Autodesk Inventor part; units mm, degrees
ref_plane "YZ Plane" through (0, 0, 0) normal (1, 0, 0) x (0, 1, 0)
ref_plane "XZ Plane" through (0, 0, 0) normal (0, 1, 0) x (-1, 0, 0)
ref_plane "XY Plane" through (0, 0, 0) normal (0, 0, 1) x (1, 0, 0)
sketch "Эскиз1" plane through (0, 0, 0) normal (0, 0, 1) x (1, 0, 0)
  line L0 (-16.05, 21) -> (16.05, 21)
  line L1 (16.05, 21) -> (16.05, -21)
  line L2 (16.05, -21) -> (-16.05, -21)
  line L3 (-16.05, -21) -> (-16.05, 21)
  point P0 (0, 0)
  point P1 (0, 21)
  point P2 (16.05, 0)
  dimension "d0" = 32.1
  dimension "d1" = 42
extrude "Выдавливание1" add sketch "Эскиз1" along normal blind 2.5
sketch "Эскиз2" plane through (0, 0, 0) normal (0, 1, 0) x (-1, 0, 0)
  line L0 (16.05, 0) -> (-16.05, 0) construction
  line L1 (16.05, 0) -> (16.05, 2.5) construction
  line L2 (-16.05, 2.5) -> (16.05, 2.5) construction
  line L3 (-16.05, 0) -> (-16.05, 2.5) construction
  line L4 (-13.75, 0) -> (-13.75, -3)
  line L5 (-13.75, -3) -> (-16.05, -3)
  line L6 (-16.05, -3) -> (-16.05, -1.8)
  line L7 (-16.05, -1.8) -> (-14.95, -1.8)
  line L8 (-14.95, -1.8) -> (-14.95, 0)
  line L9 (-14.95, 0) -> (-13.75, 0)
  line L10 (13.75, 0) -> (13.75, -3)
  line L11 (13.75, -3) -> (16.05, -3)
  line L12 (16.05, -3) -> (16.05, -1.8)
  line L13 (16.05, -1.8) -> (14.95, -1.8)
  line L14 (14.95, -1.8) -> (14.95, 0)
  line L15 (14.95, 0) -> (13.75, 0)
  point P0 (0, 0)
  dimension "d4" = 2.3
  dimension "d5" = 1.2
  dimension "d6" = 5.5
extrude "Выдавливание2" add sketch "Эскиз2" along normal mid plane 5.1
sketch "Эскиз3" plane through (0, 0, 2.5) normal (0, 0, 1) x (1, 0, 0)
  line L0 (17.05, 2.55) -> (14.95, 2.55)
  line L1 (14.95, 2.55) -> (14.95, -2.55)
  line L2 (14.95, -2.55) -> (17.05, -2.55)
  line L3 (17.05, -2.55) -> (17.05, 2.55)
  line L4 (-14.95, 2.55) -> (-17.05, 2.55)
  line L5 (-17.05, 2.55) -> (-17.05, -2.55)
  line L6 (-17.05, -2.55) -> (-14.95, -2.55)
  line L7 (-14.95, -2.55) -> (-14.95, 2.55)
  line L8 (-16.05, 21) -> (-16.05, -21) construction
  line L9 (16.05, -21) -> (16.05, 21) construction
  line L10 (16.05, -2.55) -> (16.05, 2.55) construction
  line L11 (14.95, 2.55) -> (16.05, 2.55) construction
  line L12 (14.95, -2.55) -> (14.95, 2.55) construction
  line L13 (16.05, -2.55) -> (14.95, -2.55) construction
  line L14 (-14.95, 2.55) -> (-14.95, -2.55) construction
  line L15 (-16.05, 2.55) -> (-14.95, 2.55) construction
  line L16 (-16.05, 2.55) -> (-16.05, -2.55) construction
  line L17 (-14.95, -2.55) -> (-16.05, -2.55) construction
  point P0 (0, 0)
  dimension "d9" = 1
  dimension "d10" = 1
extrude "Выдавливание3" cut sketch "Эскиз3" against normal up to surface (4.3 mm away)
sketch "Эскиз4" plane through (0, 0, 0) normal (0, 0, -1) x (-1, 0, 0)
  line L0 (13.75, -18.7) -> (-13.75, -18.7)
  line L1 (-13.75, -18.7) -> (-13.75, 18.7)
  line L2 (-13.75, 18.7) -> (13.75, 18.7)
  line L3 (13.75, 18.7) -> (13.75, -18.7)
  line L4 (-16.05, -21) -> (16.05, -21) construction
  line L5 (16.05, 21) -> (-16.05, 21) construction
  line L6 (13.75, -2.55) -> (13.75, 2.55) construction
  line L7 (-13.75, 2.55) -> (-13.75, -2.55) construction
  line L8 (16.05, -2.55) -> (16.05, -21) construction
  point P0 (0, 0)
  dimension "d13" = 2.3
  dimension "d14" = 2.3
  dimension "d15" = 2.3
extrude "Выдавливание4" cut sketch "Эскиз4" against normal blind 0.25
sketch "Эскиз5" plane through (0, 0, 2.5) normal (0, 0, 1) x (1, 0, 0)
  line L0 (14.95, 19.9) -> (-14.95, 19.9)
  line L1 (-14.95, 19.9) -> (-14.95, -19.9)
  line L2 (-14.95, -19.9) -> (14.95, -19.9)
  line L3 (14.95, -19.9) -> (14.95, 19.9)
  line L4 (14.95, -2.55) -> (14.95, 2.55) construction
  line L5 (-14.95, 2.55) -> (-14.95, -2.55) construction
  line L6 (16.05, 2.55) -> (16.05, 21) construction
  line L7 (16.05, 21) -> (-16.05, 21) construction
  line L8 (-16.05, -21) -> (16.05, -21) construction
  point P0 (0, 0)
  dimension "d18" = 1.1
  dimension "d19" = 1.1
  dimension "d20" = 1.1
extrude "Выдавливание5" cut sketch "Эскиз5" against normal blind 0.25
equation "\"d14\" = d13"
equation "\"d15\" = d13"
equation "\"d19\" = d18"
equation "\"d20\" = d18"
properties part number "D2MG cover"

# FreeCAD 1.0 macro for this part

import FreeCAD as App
import Part
import Sketcher
from FreeCAD import Vector
Q = App.Units.Quantity

doc = App.newDocument("Part")
params = doc.addObject("Spreadsheet::Sheet", "Params")
for row, (alias, value) in enumerate([
    ("sketch1_height", "42 mm"),
    ("sketch1_width", "32.1 mm"),
    ("pad1_length", "2.5 mm"),
    ("sketch2_width", "1.2 mm"),
    ("sketch2_width2", "2.3 mm"),
    ("sketch2_height", "3 mm"),
    ("pad2_length", "5.1 mm"),
    ("sketch3_width", "2.1 mm"),
    ("sketch3_height", "5.1 mm"),
    ("pocket1_length", "4.3 mm"),
    ("sketch4_width", "27.5 mm"),
    ("sketch4_height", "37.4 mm"),
    ("pocket2_length", "0.25 mm"),
    ("sketch5_width", "29.9 mm"),
    ("sketch5_height", "39.8 mm"),
    ("pocket3_length", "0.25 mm"),
], start=1):
    params.set(f"A{row}", alias)
    params.set(f"B{row}", "=" + value)
    params.setAlias(f"B{row}", alias)

body = doc.addObject("PartDesign::Body", "Body")

# Sketch on XY plane
sketch1 = doc.addObject("Sketcher::SketchObject", "Sketch")
body.addObject(sketch1)
sketch1.AttachmentSupport = (doc.XY_Plane, [""])
sketch1.MapMode = "FlatFace"
sketch1.addGeometry(Part.LineSegment(Vector(16, 21, 0), Vector(-16, 21, 0)), False)
sketch1.addGeometry(Part.LineSegment(Vector(-16, 21, 0), Vector(-16, -21, 0)), False)
sketch1.addGeometry(Part.LineSegment(Vector(-16, -21, 0), Vector(16, -21, 0)), False)
sketch1.addGeometry(Part.LineSegment(Vector(16, -21, 0), Vector(16, 21, 0)), False)
sketch1.addConstraint(Sketcher.Constraint("Coincident", 0, 2, 1, 1))
sketch1.addConstraint(Sketcher.Constraint("Coincident", 1, 2, 2, 1))
sketch1.addConstraint(Sketcher.Constraint("Coincident", 2, 2, 3, 1))
sketch1.addConstraint(Sketcher.Constraint("Coincident", 3, 2, 0, 1))
sketch1.addConstraint(Sketcher.Constraint("Horizontal", 0))
sketch1.addConstraint(Sketcher.Constraint("Vertical", 1))
sketch1.addConstraint(Sketcher.Constraint("Horizontal", 2))
sketch1.addConstraint(Sketcher.Constraint("Vertical", 3))
sketch1.addConstraint(Sketcher.Constraint("Symmetric", 0, 2, 2, 2, -1, 1))
sketch1.addConstraint(Sketcher.Constraint("DistanceY", 1, 2, 1, 1, Q("42 mm")))
sketch1.addConstraint(Sketcher.Constraint("DistanceX", 0, 2, 0, 1, Q("32.1 mm")))
sketch1.setExpression("Constraints[9]", "Params.sketch1_height")
sketch1.setExpression("Constraints[10]", "Params.sketch1_width")
pad1 = doc.addObject("PartDesign::Pad", "Pad")
body.addObject(pad1)
pad1.Profile = sketch1
pad1.setExpression("Length", "Params.pad1_length")

# Sketch on XZ plane
sketch2 = doc.addObject("Sketcher::SketchObject", "Sketch001")
body.addObject(sketch2)
sketch2.AttachmentSupport = (doc.XZ_Plane, [""])
sketch2.MapMode = "FlatFace"
sketch2.addGeometry(Part.LineSegment(Vector(13.8, -3, 0), Vector(13.8, 0, 0)), False)
sketch2.addGeometry(Part.LineSegment(Vector(13.8, 0, 0), Vector(14.9, 0, 0)), False)
sketch2.addGeometry(Part.LineSegment(Vector(14.9, 0, 0), Vector(14.9, -1.8, 0)), False)
sketch2.addGeometry(Part.LineSegment(Vector(14.9, -1.8, 0), Vector(16.1, -1.8, 0)), False)
sketch2.addGeometry(Part.LineSegment(Vector(16.1, -1.8, 0), Vector(16.1, -3, 0)), False)
sketch2.addGeometry(Part.LineSegment(Vector(16.1, -3, 0), Vector(13.8, -3, 0)), False)
sketch2.addGeometry(Part.LineSegment(Vector(-14.9, 0, 0), Vector(-13.8, 0, 0)), False)
sketch2.addGeometry(Part.LineSegment(Vector(-13.8, 0, 0), Vector(-13.8, -3, 0)), False)
sketch2.addGeometry(Part.LineSegment(Vector(-13.8, -3, 0), Vector(-16.1, -3, 0)), False)
sketch2.addGeometry(Part.LineSegment(Vector(-16.1, -3, 0), Vector(-16.1, -1.8, 0)), False)
sketch2.addGeometry(Part.LineSegment(Vector(-16.1, -1.8, 0), Vector(-14.9, -1.8, 0)), False)
sketch2.addGeometry(Part.LineSegment(Vector(-14.9, -1.8, 0), Vector(-14.9, 0, 0)), False)
sketch2.addConstraint(Sketcher.Constraint("Coincident", 0, 2, 1, 1))
sketch2.addConstraint(Sketcher.Constraint("Coincident", 1, 2, 2, 1))
sketch2.addConstraint(Sketcher.Constraint("Coincident", 2, 2, 3, 1))
sketch2.addConstraint(Sketcher.Constraint("Coincident", 3, 2, 4, 1))
sketch2.addConstraint(Sketcher.Constraint("Coincident", 4, 2, 5, 1))
sketch2.addConstraint(Sketcher.Constraint("Coincident", 5, 2, 0, 1))
sketch2.addConstraint(Sketcher.Constraint("Coincident", 6, 2, 7, 1))
sketch2.addConstraint(Sketcher.Constraint("Coincident", 7, 2, 8, 1))
sketch2.addConstraint(Sketcher.Constraint("Coincident", 8, 2, 9, 1))
sketch2.addConstraint(Sketcher.Constraint("Coincident", 9, 2, 10, 1))
sketch2.addConstraint(Sketcher.Constraint("Coincident", 10, 2, 11, 1))
sketch2.addConstraint(Sketcher.Constraint("Coincident", 11, 2, 6, 1))
sketch2.addConstraint(Sketcher.Constraint("Vertical", 0))
sketch2.addConstraint(Sketcher.Constraint("Horizontal", 1))
sketch2.addConstraint(Sketcher.Constraint("Vertical", 2))
sketch2.addConstraint(Sketcher.Constraint("Horizontal", 3))
sketch2.addConstraint(Sketcher.Constraint("Vertical", 4))
sketch2.addConstraint(Sketcher.Constraint("Horizontal", 5))
sketch2.addConstraint(Sketcher.Constraint("Horizontal", 6))
sketch2.addConstraint(Sketcher.Constraint("Vertical", 7))
sketch2.addConstraint(Sketcher.Constraint("Horizontal", 8))
sketch2.addConstraint(Sketcher.Constraint("Vertical", 9))
sketch2.addConstraint(Sketcher.Constraint("Horizontal", 10))
sketch2.addConstraint(Sketcher.Constraint("Vertical", 11))
sketch2.addConstraint(Sketcher.Constraint("Symmetric", 0, 2, 6, 2, -1, 1))
sketch2.addConstraint(Sketcher.Constraint("Symmetric", 4, 2, 8, 2, -2))
sketch2.addConstraint(Sketcher.Constraint("Symmetric", 2, 2, 10, 2, -2))
sketch2.addConstraint(Sketcher.Constraint("PointOnObject", 0, 2, -1))
sketch2.addConstraint(Sketcher.Constraint("Equal", 6, 4))
sketch2.addConstraint(Sketcher.Constraint("DistanceX", 1, 1, 1, 2, Q("1.2 mm")))
sketch2.addConstraint(Sketcher.Constraint("DistanceX", 5, 2, 5, 1, Q("2.3 mm")))
sketch2.addConstraint(Sketcher.Constraint("DistanceY", 0, 1, 0, 2, Q("3 mm")))
sketch2.addConstraint(Sketcher.Constraint("DistanceX", 8, 2, 2, 2, Q("31 mm")))
sketch2.setExpression("Constraints[29]", "Params.sketch2_width")
sketch2.setExpression("Constraints[30]", "Params.sketch2_width2")
sketch2.setExpression("Constraints[31]", "Params.sketch2_height")
pad2 = doc.addObject("PartDesign::Pad", "Pad001")
body.addObject(pad2)
pad2.Profile = sketch2
pad2.setExpression("Length", "Params.pad2_length")
pad2.Midplane = True

# Sketch on XY plane
sketch3 = doc.addObject("Sketcher::SketchObject", "Sketch002")
body.addObject(sketch3)
sketch3.AttachmentSupport = (doc.XY_Plane, [""])
sketch3.MapMode = "FlatFace"
sketch3.AttachmentOffset = App.Placement(Vector(0, 0, 2.5), App.Rotation())
sketch3.addGeometry(Part.LineSegment(Vector(17.1, -2.5, 0), Vector(17.1, 2.5, 0)), False)
sketch3.addGeometry(Part.LineSegment(Vector(17.1, 2.5, 0), Vector(14.9, 2.5, 0)), False)
sketch3.addGeometry(Part.LineSegment(Vector(14.9, 2.5, 0), Vector(14.9, -2.5, 0)), False)
sketch3.addGeometry(Part.LineSegment(Vector(14.9, -2.5, 0), Vector(17.1, -2.5, 0)), False)
sketch3.addGeometry(Part.LineSegment(Vector(-14.9, -2.5, 0), Vector(-14.9, 2.5, 0)), False)
sketch3.addGeometry(Part.LineSegment(Vector(-14.9, 2.5, 0), Vector(-17.1, 2.5, 0)), False)
sketch3.addGeometry(Part.LineSegment(Vector(-17.1, 2.5, 0), Vector(-17.1, -2.5, 0)), False)
sketch3.addGeometry(Part.LineSegment(Vector(-17.1, -2.5, 0), Vector(-14.9, -2.5, 0)), False)
sketch3.addConstraint(Sketcher.Constraint("Coincident", 0, 2, 1, 1))
sketch3.addConstraint(Sketcher.Constraint("Coincident", 1, 2, 2, 1))
sketch3.addConstraint(Sketcher.Constraint("Coincident", 2, 2, 3, 1))
sketch3.addConstraint(Sketcher.Constraint("Coincident", 3, 2, 0, 1))
sketch3.addConstraint(Sketcher.Constraint("Coincident", 4, 2, 5, 1))
sketch3.addConstraint(Sketcher.Constraint("Coincident", 5, 2, 6, 1))
sketch3.addConstraint(Sketcher.Constraint("Coincident", 6, 2, 7, 1))
sketch3.addConstraint(Sketcher.Constraint("Coincident", 7, 2, 4, 1))
sketch3.addConstraint(Sketcher.Constraint("Vertical", 0))
sketch3.addConstraint(Sketcher.Constraint("Horizontal", 1))
sketch3.addConstraint(Sketcher.Constraint("Vertical", 2))
sketch3.addConstraint(Sketcher.Constraint("Horizontal", 3))
sketch3.addConstraint(Sketcher.Constraint("Vertical", 4))
sketch3.addConstraint(Sketcher.Constraint("Horizontal", 5))
sketch3.addConstraint(Sketcher.Constraint("Vertical", 6))
sketch3.addConstraint(Sketcher.Constraint("Horizontal", 7))
sketch3.addConstraint(Sketcher.Constraint("Symmetric", 2, 2, 4, 2, -1, 1))
sketch3.addConstraint(Sketcher.Constraint("Symmetric", 0, 2, 6, 2, -1, 1))
sketch3.addConstraint(Sketcher.Constraint("Horizontal", 1, 2, 4, 2))
sketch3.addConstraint(Sketcher.Constraint("DistanceX", 1, 2, 1, 1, Q("2.1 mm")))
sketch3.addConstraint(Sketcher.Constraint("DistanceY", 0, 1, 0, 2, Q("5.1 mm")))
sketch3.addConstraint(Sketcher.Constraint("DistanceX", 4, 2, 0, 2, Q("32 mm")))
sketch3.setExpression("Constraints[19]", "Params.sketch3_width")
sketch3.setExpression("Constraints[20]", "Params.sketch3_height")
pocket1 = doc.addObject("PartDesign::Pocket", "Pocket")
body.addObject(pocket1)
pocket1.Profile = sketch3
pocket1.setExpression("Length", "Params.pocket1_length")

# Sketch on XY plane
sketch4 = doc.addObject("Sketcher::SketchObject", "Sketch003")
body.addObject(sketch4)
sketch4.AttachmentSupport = (doc.XY_Plane, [""])
sketch4.MapMode = "FlatFace"
sketch4.addGeometry(Part.LineSegment(Vector(14, -19, 0), Vector(-14, -19, 0)), False)
sketch4.addGeometry(Part.LineSegment(Vector(-14, -19, 0), Vector(-14, 19, 0)), False)
sketch4.addGeometry(Part.LineSegment(Vector(-14, 19, 0), Vector(14, 19, 0)), False)
sketch4.addGeometry(Part.LineSegment(Vector(14, 19, 0), Vector(14, -19, 0)), False)
sketch4.addConstraint(Sketcher.Constraint("Coincident", 0, 2, 1, 1))
sketch4.addConstraint(Sketcher.Constraint("Coincident", 1, 2, 2, 1))
sketch4.addConstraint(Sketcher.Constraint("Coincident", 2, 2, 3, 1))
sketch4.addConstraint(Sketcher.Constraint("Coincident", 3, 2, 0, 1))
sketch4.addConstraint(Sketcher.Constraint("Horizontal", 0))
sketch4.addConstraint(Sketcher.Constraint("Vertical", 1))
sketch4.addConstraint(Sketcher.Constraint("Horizontal", 2))
sketch4.addConstraint(Sketcher.Constraint("Vertical", 3))
sketch4.addConstraint(Sketcher.Constraint("Symmetric", 0, 2, 2, 2, -1, 1))
sketch4.addConstraint(Sketcher.Constraint("DistanceX", 0, 2, 0, 1, Q("27.5 mm")))
sketch4.addConstraint(Sketcher.Constraint("DistanceY", 1, 1, 1, 2, Q("37.4 mm")))
sketch4.setExpression("Constraints[9]", "Params.sketch4_width")
sketch4.setExpression("Constraints[10]", "Params.sketch4_height")
pocket2 = doc.addObject("PartDesign::Pocket", "Pocket001")
body.addObject(pocket2)
pocket2.Profile = sketch4
pocket2.setExpression("Length", "Params.pocket2_length")
pocket2.Reversed = True

# Sketch on XY plane
sketch5 = doc.addObject("Sketcher::SketchObject", "Sketch004")
body.addObject(sketch5)
sketch5.AttachmentSupport = (doc.XY_Plane, [""])
sketch5.MapMode = "FlatFace"
sketch5.AttachmentOffset = App.Placement(Vector(0, 0, 2.5), App.Rotation())
sketch5.addGeometry(Part.LineSegment(Vector(15, -20, 0), Vector(15, 20, 0)), False)
sketch5.addGeometry(Part.LineSegment(Vector(15, 20, 0), Vector(-15, 20, 0)), False)
sketch5.addGeometry(Part.LineSegment(Vector(-15, 20, 0), Vector(-15, -20, 0)), False)
sketch5.addGeometry(Part.LineSegment(Vector(-15, -20, 0), Vector(15, -20, 0)), False)
sketch5.addConstraint(Sketcher.Constraint("Coincident", 0, 2, 1, 1))
sketch5.addConstraint(Sketcher.Constraint("Coincident", 1, 2, 2, 1))
sketch5.addConstraint(Sketcher.Constraint("Coincident", 2, 2, 3, 1))
sketch5.addConstraint(Sketcher.Constraint("Coincident", 3, 2, 0, 1))
sketch5.addConstraint(Sketcher.Constraint("Vertical", 0))
sketch5.addConstraint(Sketcher.Constraint("Horizontal", 1))
sketch5.addConstraint(Sketcher.Constraint("Vertical", 2))
sketch5.addConstraint(Sketcher.Constraint("Horizontal", 3))
sketch5.addConstraint(Sketcher.Constraint("Symmetric", 0, 2, 2, 2, -1, 1))
sketch5.addConstraint(Sketcher.Constraint("DistanceX", 1, 2, 1, 1, Q("29.9 mm")))
sketch5.addConstraint(Sketcher.Constraint("DistanceY", 0, 1, 0, 2, Q("39.8 mm")))
sketch5.setExpression("Constraints[9]", "Params.sketch5_width")
sketch5.setExpression("Constraints[10]", "Params.sketch5_height")
pocket3 = doc.addObject("PartDesign::Pocket", "Pocket002")
body.addObject(pocket3)
pocket3.Profile = sketch5
pocket3.setExpression("Length", "Params.pocket3_length")

doc.recompute()
